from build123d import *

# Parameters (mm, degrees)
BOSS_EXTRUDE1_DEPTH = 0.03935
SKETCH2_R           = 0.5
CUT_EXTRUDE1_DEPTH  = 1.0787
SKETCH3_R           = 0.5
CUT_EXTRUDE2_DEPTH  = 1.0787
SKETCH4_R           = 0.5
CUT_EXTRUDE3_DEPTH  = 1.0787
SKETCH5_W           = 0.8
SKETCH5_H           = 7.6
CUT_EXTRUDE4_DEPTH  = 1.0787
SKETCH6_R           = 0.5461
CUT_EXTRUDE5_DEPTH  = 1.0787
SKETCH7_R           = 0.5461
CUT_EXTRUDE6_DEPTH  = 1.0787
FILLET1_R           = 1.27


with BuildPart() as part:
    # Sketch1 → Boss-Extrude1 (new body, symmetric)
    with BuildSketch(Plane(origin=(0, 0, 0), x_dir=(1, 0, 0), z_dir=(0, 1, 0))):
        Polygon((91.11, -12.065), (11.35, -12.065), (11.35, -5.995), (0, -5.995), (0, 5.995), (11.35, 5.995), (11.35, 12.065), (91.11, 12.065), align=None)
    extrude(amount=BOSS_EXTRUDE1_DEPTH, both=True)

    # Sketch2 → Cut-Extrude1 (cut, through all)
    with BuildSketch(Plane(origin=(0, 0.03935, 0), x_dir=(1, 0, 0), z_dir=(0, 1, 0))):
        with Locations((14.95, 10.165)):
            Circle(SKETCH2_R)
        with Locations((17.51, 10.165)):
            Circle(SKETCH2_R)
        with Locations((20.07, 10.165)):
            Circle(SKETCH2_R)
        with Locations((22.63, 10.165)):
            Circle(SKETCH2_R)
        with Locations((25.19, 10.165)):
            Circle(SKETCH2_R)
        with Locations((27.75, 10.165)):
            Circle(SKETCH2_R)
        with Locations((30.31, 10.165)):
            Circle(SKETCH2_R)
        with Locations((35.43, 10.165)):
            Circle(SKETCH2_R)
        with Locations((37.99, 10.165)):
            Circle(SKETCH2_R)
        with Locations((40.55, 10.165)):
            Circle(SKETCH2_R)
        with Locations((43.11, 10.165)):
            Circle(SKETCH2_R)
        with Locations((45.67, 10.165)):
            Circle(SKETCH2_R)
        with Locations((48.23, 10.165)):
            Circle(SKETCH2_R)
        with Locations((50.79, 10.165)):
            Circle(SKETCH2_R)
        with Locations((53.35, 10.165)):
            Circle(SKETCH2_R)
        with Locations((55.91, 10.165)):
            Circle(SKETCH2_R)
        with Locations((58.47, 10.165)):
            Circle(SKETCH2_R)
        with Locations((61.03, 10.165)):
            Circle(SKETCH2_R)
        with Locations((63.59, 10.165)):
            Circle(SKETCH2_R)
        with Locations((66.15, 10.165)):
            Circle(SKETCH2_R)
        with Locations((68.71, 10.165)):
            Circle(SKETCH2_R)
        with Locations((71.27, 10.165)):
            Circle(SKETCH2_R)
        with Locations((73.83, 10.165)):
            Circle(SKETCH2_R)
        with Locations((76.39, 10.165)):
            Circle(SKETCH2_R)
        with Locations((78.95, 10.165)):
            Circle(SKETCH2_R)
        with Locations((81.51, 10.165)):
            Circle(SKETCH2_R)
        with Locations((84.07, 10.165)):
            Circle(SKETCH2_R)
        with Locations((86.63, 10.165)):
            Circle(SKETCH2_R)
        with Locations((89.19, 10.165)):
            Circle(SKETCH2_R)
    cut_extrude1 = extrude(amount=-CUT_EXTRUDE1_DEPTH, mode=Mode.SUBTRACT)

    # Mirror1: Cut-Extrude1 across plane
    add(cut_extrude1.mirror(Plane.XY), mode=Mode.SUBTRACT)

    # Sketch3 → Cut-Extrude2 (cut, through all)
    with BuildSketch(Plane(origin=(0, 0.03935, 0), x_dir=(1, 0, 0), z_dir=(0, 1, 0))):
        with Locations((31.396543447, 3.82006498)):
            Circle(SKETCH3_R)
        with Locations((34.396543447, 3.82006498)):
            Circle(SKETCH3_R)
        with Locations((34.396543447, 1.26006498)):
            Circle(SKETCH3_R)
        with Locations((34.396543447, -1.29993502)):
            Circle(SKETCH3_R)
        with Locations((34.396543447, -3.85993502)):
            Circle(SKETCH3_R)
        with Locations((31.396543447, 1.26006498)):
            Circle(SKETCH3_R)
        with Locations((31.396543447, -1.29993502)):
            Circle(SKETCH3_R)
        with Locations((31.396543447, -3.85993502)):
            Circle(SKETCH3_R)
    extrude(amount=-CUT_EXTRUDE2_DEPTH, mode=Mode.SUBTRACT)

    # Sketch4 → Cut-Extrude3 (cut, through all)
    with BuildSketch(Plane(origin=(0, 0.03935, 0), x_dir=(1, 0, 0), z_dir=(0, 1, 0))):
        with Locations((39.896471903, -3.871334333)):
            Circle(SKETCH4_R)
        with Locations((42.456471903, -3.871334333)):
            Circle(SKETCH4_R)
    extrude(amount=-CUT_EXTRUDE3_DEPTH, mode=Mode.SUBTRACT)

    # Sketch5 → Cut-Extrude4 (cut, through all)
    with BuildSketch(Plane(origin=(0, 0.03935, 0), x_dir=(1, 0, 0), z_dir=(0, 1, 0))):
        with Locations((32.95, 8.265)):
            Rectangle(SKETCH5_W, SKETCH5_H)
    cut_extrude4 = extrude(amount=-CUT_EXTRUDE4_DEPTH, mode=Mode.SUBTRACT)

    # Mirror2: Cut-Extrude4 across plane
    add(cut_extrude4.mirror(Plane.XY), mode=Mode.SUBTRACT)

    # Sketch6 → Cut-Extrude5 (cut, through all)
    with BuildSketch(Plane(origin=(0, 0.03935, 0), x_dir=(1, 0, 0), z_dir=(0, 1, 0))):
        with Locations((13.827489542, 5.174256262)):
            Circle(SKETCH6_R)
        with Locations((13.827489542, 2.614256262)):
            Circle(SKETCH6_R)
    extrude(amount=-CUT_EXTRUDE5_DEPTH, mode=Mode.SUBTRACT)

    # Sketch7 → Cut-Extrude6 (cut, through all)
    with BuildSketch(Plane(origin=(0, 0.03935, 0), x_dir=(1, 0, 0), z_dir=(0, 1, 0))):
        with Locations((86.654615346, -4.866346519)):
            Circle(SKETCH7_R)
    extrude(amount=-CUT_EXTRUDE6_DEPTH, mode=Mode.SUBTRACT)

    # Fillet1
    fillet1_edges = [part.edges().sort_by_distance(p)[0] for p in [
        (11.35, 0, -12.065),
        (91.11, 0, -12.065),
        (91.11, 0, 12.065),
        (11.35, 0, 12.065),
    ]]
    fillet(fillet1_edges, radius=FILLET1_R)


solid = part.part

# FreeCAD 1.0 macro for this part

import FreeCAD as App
import Part
import Sketcher
from FreeCAD import Vector


def edges_at(feature, points):
    """Names of the edges that pass closest to the given points."""
    edges = feature.Shape.Edges
    near = lambda p: min(range(len(edges)), key=lambda i: edges[i].distToShape(Part.Vertex(*p))[0])
    return sorted({f"Edge{near(p) + 1}" for p in points})


def add_polygon(sketch, points):
    """Adds a closed chain of lines whose ends are joined by coincident constraints."""
    first, n = sketch.GeometryCount, len(points)
    for a, b in zip(points, points[1:] + points[:1]):
        sketch.addGeometry(Part.LineSegment(App.Vector(*a, 0), App.Vector(*b, 0)), False)
    for i in range(n):
        sketch.addConstraint(Sketcher.Constraint("Coincident", first + i, 2, first + (i + 1) % n, 1))

doc = App.newDocument("Part")
params = doc.addObject("Spreadsheet::Sheet", "Params")
for row, (alias, value) in enumerate([
    ("sketch1_width", "79.76 mm"),
    ("sketch1_width2", "11.35 mm"),
    ("sketch1_height", "24.13 mm"),
    ("sketch1_height2", "6.07 mm"),
    ("pad1_length", "0.0787 mm"),
    ("sketch2_diameter", "1 mm"),
    ("sketch3_diameter", "1 mm"),
    ("sketch4_diameter", "1 mm"),
    ("sketch5_width", "0.8 mm"),
    ("sketch5_height", "7.6 mm"),
    ("fillet_radius", "1.27 mm"),
], start=1):
    params.set(f"A{row}", alias)
    params.set(f"B{row}", "=" + value)
    params.setAlias(f"B{row}", alias)

body = doc.addObject("PartDesign::Body", "Body")

# Sketch on XZ plane
sketch1 = body.newObject("Sketcher::SketchObject", "Sketch")
sketch1.AttachmentSupport = (doc.getObject("XZ_Plane"), [""])
sketch1.MapMode = "FlatFace"
add_polygon(sketch1, [(11.35, 12.065), (91.11, 12.065), (91.11, -12.065), (11.35, -12.065), (11.35, -5.995), (0, -5.995), (0, 5.995), (11.35, 5.995)])  # lines 0-7
sketch1.addConstraint(Sketcher.Constraint("Horizontal", 0))
sketch1.addConstraint(Sketcher.Constraint("Vertical", 1))
sketch1.addConstraint(Sketcher.Constraint("Horizontal", 2))
sketch1.addConstraint(Sketcher.Constraint("Vertical", 3))
sketch1.addConstraint(Sketcher.Constraint("Horizontal", 4))
sketch1.addConstraint(Sketcher.Constraint("Vertical", 5))
sketch1.addConstraint(Sketcher.Constraint("Horizontal", 6))
sketch1.addConstraint(Sketcher.Constraint("Vertical", 7))
sketch1.addConstraint(Sketcher.Constraint("Symmetric", 4, 2, 5, 2, -1, 1))
sketch1.addConstraint(Sketcher.Constraint("Symmetric", 2, 2, 7, 2, -1))
sketch1.addConstraint(Sketcher.Constraint("DistanceX", 0, 1, 0, 2, 79.76))
sketch1.addConstraint(Sketcher.Constraint("DistanceX", 4, 2, 4, 1, 11.35))
sketch1.addConstraint(Sketcher.Constraint("DistanceY", 1, 2, 1, 1, 24.13))
sketch1.addConstraint(Sketcher.Constraint("DistanceY", 3, 1, 3, 2, 6.07))
sketch1.setExpression("Constraints[18]", "Params.sketch1_width")
sketch1.setExpression("Constraints[19]", "Params.sketch1_width2")
sketch1.setExpression("Constraints[20]", "Params.sketch1_height")
sketch1.setExpression("Constraints[21]", "Params.sketch1_height2")
pad1 = body.newObject("PartDesign::Pad", "Pad")
pad1.Profile = sketch1
pad1.setExpression("Length", "Params.pad1_length")
pad1.Midplane = True

# Sketch on XZ plane
sketch2 = body.newObject("Sketcher::SketchObject", "Sketch001")
sketch2.AttachmentSupport = (doc.getObject("XZ_Plane"), [""])
sketch2.MapMode = "FlatFace"
sketch2.AttachmentOffset = App.Placement(Vector(0, 0, -0.03935), App.Rotation())
sketch2.addGeometry(Part.Circle(Vector(14.95, -10.165, 0), Vector(0, 0, 1), 0.5), False)
sketch2.addGeometry(Part.Circle(Vector(17.51, -10.165, 0), Vector(0, 0, 1), 0.5), False)
sketch2.addGeometry(Part.Circle(Vector(20.07, -10.165, 0), Vector(0, 0, 1), 0.5), False)
sketch2.addGeometry(Part.Circle(Vector(22.63, -10.165, 0), Vector(0, 0, 1), 0.5), False)
sketch2.addGeometry(Part.Circle(Vector(25.19, -10.165, 0), Vector(0, 0, 1), 0.5), False)
sketch2.addGeometry(Part.Circle(Vector(27.75, -10.165, 0), Vector(0, 0, 1), 0.5), False)
sketch2.addGeometry(Part.Circle(Vector(30.31, -10.165, 0), Vector(0, 0, 1), 0.5), False)
sketch2.addGeometry(Part.Circle(Vector(35.43, -10.165, 0), Vector(0, 0, 1), 0.5), False)
sketch2.addGeometry(Part.Circle(Vector(37.99, -10.165, 0), Vector(0, 0, 1), 0.5), False)
sketch2.addGeometry(Part.Circle(Vector(40.55, -10.165, 0), Vector(0, 0, 1), 0.5), False)
sketch2.addGeometry(Part.Circle(Vector(43.11, -10.165, 0), Vector(0, 0, 1), 0.5), False)
sketch2.addGeometry(Part.Circle(Vector(45.67, -10.165, 0), Vector(0, 0, 1), 0.5), False)
sketch2.addGeometry(Part.Circle(Vector(48.23, -10.165, 0), Vector(0, 0, 1), 0.5), False)
sketch2.addGeometry(Part.Circle(Vector(50.79, -10.165, 0), Vector(0, 0, 1), 0.5), False)
sketch2.addGeometry(Part.Circle(Vector(53.35, -10.165, 0), Vector(0, 0, 1), 0.5), False)
sketch2.addGeometry(Part.Circle(Vector(55.91, -10.165, 0), Vector(0, 0, 1), 0.5), False)
sketch2.addGeometry(Part.Circle(Vector(58.47, -10.165, 0), Vector(0, 0, 1), 0.5), False)
sketch2.addGeometry(Part.Circle(Vector(61.03, -10.165, 0), Vector(0, 0, 1), 0.5), False)
sketch2.addGeometry(Part.Circle(Vector(63.59, -10.165, 0), Vector(0, 0, 1), 0.5), False)
sketch2.addGeometry(Part.Circle(Vector(66.15, -10.165, 0), Vector(0, 0, 1), 0.5), False)
sketch2.addGeometry(Part.Circle(Vector(68.71, -10.165, 0), Vector(0, 0, 1), 0.5), False)
sketch2.addGeometry(Part.Circle(Vector(71.27, -10.165, 0), Vector(0, 0, 1), 0.5), False)
sketch2.addGeometry(Part.Circle(Vector(73.83, -10.165, 0), Vector(0, 0, 1), 0.5), False)
sketch2.addGeometry(Part.Circle(Vector(76.39, -10.165, 0), Vector(0, 0, 1), 0.5), False)
sketch2.addGeometry(Part.Circle(Vector(78.95, -10.165, 0), Vector(0, 0, 1), 0.5), False)
sketch2.addGeometry(Part.Circle(Vector(81.51, -10.165, 0), Vector(0, 0, 1), 0.5), False)
sketch2.addGeometry(Part.Circle(Vector(84.07, -10.165, 0), Vector(0, 0, 1), 0.5), False)
sketch2.addGeometry(Part.Circle(Vector(86.63, -10.165, 0), Vector(0, 0, 1), 0.5), False)
sketch2.addGeometry(Part.Circle(Vector(89.19, -10.165, 0), Vector(0, 0, 1), 0.5), False)
sketch2.addConstraint(Sketcher.Constraint("Equal", 0, 1))
sketch2.addConstraint(Sketcher.Constraint("Equal", 1, 2))
sketch2.addConstraint(Sketcher.Constraint("Equal", 2, 3))
sketch2.addConstraint(Sketcher.Constraint("Equal", 3, 4))
sketch2.addConstraint(Sketcher.Constraint("Equal", 4, 5))
sketch2.addConstraint(Sketcher.Constraint("Equal", 5, 6))
sketch2.addConstraint(Sketcher.Constraint("Equal", 6, 7))
sketch2.addConstraint(Sketcher.Constraint("Equal", 7, 8))
sketch2.addConstraint(Sketcher.Constraint("Equal", 8, 9))
sketch2.addConstraint(Sketcher.Constraint("Equal", 9, 10))
sketch2.addConstraint(Sketcher.Constraint("Equal", 10, 11))
sketch2.addConstraint(Sketcher.Constraint("Equal", 11, 12))
sketch2.addConstraint(Sketcher.Constraint("Equal", 12, 13))
sketch2.addConstraint(Sketcher.Constraint("Equal", 13, 14))
sketch2.addConstraint(Sketcher.Constraint("Equal", 14, 15))
sketch2.addConstraint(Sketcher.Constraint("Equal", 15, 16))
sketch2.addConstraint(Sketcher.Constraint("Equal", 16, 17))
sketch2.addConstraint(Sketcher.Constraint("Equal", 17, 18))
sketch2.addConstraint(Sketcher.Constraint("Equal", 18, 19))
sketch2.addConstraint(Sketcher.Constraint("Equal", 19, 20))
sketch2.addConstraint(Sketcher.Constraint("Equal", 20, 21))
sketch2.addConstraint(Sketcher.Constraint("Equal", 21, 22))
sketch2.addConstraint(Sketcher.Constraint("Equal", 22, 23))
sketch2.addConstraint(Sketcher.Constraint("Equal", 23, 24))
sketch2.addConstraint(Sketcher.Constraint("Equal", 24, 25))
sketch2.addConstraint(Sketcher.Constraint("Equal", 25, 26))
sketch2.addConstraint(Sketcher.Constraint("Equal", 26, 27))
sketch2.addConstraint(Sketcher.Constraint("Equal", 27, 28))
sketch2.addConstraint(Sketcher.Constraint("Horizontal", 0, 3, 1, 3))
sketch2.addConstraint(Sketcher.Constraint("Horizontal", 1, 3, 2, 3))
sketch2.addConstraint(Sketcher.Constraint("Horizontal", 2, 3, 3, 3))
sketch2.addConstraint(Sketcher.Constraint("Horizontal", 3, 3, 4, 3))
sketch2.addConstraint(Sketcher.Constraint("Horizontal", 4, 3, 5, 3))
sketch2.addConstraint(Sketcher.Constraint("Horizontal", 5, 3, 6, 3))
sketch2.addConstraint(Sketcher.Constraint("Horizontal", 6, 3, 7, 3))
sketch2.addConstraint(Sketcher.Constraint("Horizontal", 7, 3, 8, 3))
sketch2.addConstraint(Sketcher.Constraint("Horizontal", 8, 3, 9, 3))
sketch2.addConstraint(Sketcher.Constraint("Horizontal", 9, 3, 10, 3))
sketch2.addConstraint(Sketcher.Constraint("Horizontal", 10, 3, 11, 3))
sketch2.addConstraint(Sketcher.Constraint("Horizontal", 11, 3, 12, 3))
sketch2.addConstraint(Sketcher.Constraint("Horizontal", 12, 3, 13, 3))
sketch2.addConstraint(Sketcher.Constraint("Horizontal", 13, 3, 14, 3))
sketch2.addConstraint(Sketcher.Constraint("Horizontal", 14, 3, 15, 3))
sketch2.addConstraint(Sketcher.Constraint("Horizontal", 15, 3, 16, 3))
sketch2.addConstraint(Sketcher.Constraint("Horizontal", 16, 3, 17, 3))
sketch2.addConstraint(Sketcher.Constraint("Horizontal", 17, 3, 18, 3))
sketch2.addConstraint(Sketcher.Constraint("Horizontal", 18, 3, 19, 3))
sketch2.addConstraint(Sketcher.Constraint("Horizontal", 19, 3, 20, 3))
sketch2.addConstraint(Sketcher.Constraint("Horizontal", 20, 3, 21, 3))
sketch2.addConstraint(Sketcher.Constraint("Horizontal", 21, 3, 22, 3))
sketch2.addConstraint(Sketcher.Constraint("Horizontal", 22, 3, 23, 3))
sketch2.addConstraint(Sketcher.Constraint("Horizontal", 23, 3, 24, 3))
sketch2.addConstraint(Sketcher.Constraint("Horizontal", 24, 3, 25, 3))
sketch2.addConstraint(Sketcher.Constraint("Horizontal", 25, 3, 26, 3))
sketch2.addConstraint(Sketcher.Constraint("Horizontal", 26, 3, 27, 3))
sketch2.addConstraint(Sketcher.Constraint("Horizontal", 27, 3, 28, 3))
sketch2.addConstraint(Sketcher.Constraint("Diameter", 0, 1.0))
sketch2.addConstraint(Sketcher.Constraint("DistanceX", 0, 3, 5, 3, 12.8))
sketch2.addConstraint(Sketcher.Constraint("DistanceX", 1, 3, 6, 3, 12.8))
sketch2.addConstraint(Sketcher.Constraint("DistanceX", 3, 3, 7, 3, 12.8))
sketch2.addConstraint(Sketcher.Constraint("DistanceX", 4, 3, 8, 3, 12.8))
sketch2.addConstraint(Sketcher.Constraint("DistanceX", 5, 3, 9, 3, 12.8))
sketch2.addConstraint(Sketcher.Constraint("DistanceX", 6, 3, 10, 3, 12.8))
sketch2.addConstraint(Sketcher.Constraint("DistanceX", 7, 3, 12, 3, 12.8))
sketch2.addConstraint(Sketcher.Constraint("DistanceX", 8, 3, 13, 3, 12.8))
sketch2.addConstraint(Sketcher.Constraint("DistanceX", 9, 3, 14, 3, 12.8))
sketch2.addConstraint(Sketcher.Constraint("DistanceX", 10, 3, 15, 3, 12.8))
sketch2.addConstraint(Sketcher.Constraint("DistanceX", 11, 3, 16, 3, 12.8))
sketch2.addConstraint(Sketcher.Constraint("DistanceX", 12, 3, 17, 3, 12.8))
sketch2.addConstraint(Sketcher.Constraint("DistanceX", 13, 3, 18, 3, 12.8))
sketch2.addConstraint(Sketcher.Constraint("DistanceX", 14, 3, 19, 3, 12.8))
sketch2.addConstraint(Sketcher.Constraint("DistanceX", 15, 3, 20, 3, 12.8))
sketch2.addConstraint(Sketcher.Constraint("DistanceX", 16, 3, 21, 3, 12.8))
sketch2.addConstraint(Sketcher.Constraint("DistanceX", 17, 3, 22, 3, 12.8))
sketch2.addConstraint(Sketcher.Constraint("DistanceX", 18, 3, 23, 3, 12.8))
sketch2.addConstraint(Sketcher.Constraint("DistanceX", 19, 3, 24, 3, 12.8))
sketch2.addConstraint(Sketcher.Constraint("DistanceX", 20, 3, 25, 3, 12.8))
sketch2.addConstraint(Sketcher.Constraint("DistanceX", 21, 3, 26, 3, 12.8))
sketch2.addConstraint(Sketcher.Constraint("DistanceX", 22, 3, 27, 3, 12.8))
sketch2.addConstraint(Sketcher.Constraint("DistanceX", 23, 3, 28, 3, 12.8))
sketch2.addConstraint(Sketcher.Constraint("DistanceX", -1, 1, 0, 3, 14.95))
sketch2.addConstraint(Sketcher.Constraint("DistanceX", -1, 1, 1, 3, 17.51))
sketch2.addConstraint(Sketcher.Constraint("DistanceX", -1, 1, 2, 3, 20.07))
sketch2.addConstraint(Sketcher.Constraint("DistanceX", -1, 1, 3, 3, 22.63))
sketch2.addConstraint(Sketcher.Constraint("DistanceX", -1, 1, 4, 3, 25.19))
sketch2.addConstraint(Sketcher.Constraint("DistanceX", -1, 1, 11, 3, 45.67))
sketch2.addConstraint(Sketcher.Constraint("DistanceY", 0, 3, -1, 1, 10.165))
sketch2.setExpression("Constraints[56]", "Params.sketch2_diameter")
pocket1 = body.newObject("PartDesign::Pocket", "Pocket")
pocket1.Profile = sketch2
pocket1.Type = "ThroughAll"
pocket1.Reversed = True
doc.recompute()

mirrored = body.newObject("PartDesign::Mirrored", "Mirrored")
mirrored.Originals = [pocket1]
mirrored.MirrorPlane = (doc.getObject("XY_Plane"), [""])
body.Tip = mirrored

# Sketch on XZ plane
sketch3 = body.newObject("Sketcher::SketchObject", "Sketch002")
sketch3.AttachmentSupport = (doc.getObject("XZ_Plane"), [""])
sketch3.MapMode = "FlatFace"
sketch3.AttachmentOffset = App.Placement(Vector(0, 0, -0.03935), App.Rotation())
sketch3.addGeometry(Part.Circle(Vector(31.396543, -3.820065, 0), Vector(0, 0, 1), 0.5), False)
sketch3.addGeometry(Part.Circle(Vector(34.396543, -3.820065, 0), Vector(0, 0, 1), 0.5), False)
sketch3.addGeometry(Part.Circle(Vector(34.396543, -1.260065, 0), Vector(0, 0, 1), 0.5), False)
sketch3.addGeometry(Part.Circle(Vector(34.396543, 1.299935, 0), Vector(0, 0, 1), 0.5), False)
sketch3.addGeometry(Part.Circle(Vector(34.396543, 3.859935, 0), Vector(0, 0, 1), 0.5), False)
sketch3.addGeometry(Part.Circle(Vector(31.396543, -1.260065, 0), Vector(0, 0, 1), 0.5), False)
sketch3.addGeometry(Part.Circle(Vector(31.396543, 1.299935, 0), Vector(0, 0, 1), 0.5), False)
sketch3.addGeometry(Part.Circle(Vector(31.396543, 3.859935, 0), Vector(0, 0, 1), 0.5), False)
sketch3.addConstraint(Sketcher.Constraint("Equal", 0, 1))
sketch3.addConstraint(Sketcher.Constraint("Equal", 1, 2))
sketch3.addConstraint(Sketcher.Constraint("Equal", 2, 3))
sketch3.addConstraint(Sketcher.Constraint("Equal", 3, 4))
sketch3.addConstraint(Sketcher.Constraint("Equal", 4, 5))
sketch3.addConstraint(Sketcher.Constraint("Equal", 5, 6))
sketch3.addConstraint(Sketcher.Constraint("Equal", 6, 7))
sketch3.addConstraint(Sketcher.Constraint("Horizontal", 0, 3, 1, 3))
sketch3.addConstraint(Sketcher.Constraint("Horizontal", 2, 3, 5, 3))
sketch3.addConstraint(Sketcher.Constraint("Horizontal", 3, 3, 6, 3))
sketch3.addConstraint(Sketcher.Constraint("Horizontal", 4, 3, 7, 3))
sketch3.addConstraint(Sketcher.Constraint("Vertical", 1, 3, 2, 3))
sketch3.addConstraint(Sketcher.Constraint("Vertical", 2, 3, 3, 3))
sketch3.addConstraint(Sketcher.Constraint("Vertical", 3, 3, 4, 3))
sketch3.addConstraint(Sketcher.Constraint("Vertical", 0, 3, 5, 3))
sketch3.addConstraint(Sketcher.Constraint("Vertical", 5, 3, 6, 3))
sketch3.addConstraint(Sketcher.Constraint("Vertical", 6, 3, 7, 3))
sketch3.addConstraint(Sketcher.Constraint("Diameter", 0, 1.0))
sketch3.addConstraint(Sketcher.Constraint("DistanceX", 0, 3, 1, 3, 3.0))
sketch3.addConstraint(Sketcher.Constraint("DistanceY", 1, 3, 2, 3, 2.56))
sketch3.addConstraint(Sketcher.Constraint("DistanceY", 2, 3, 3, 3, 2.56))
sketch3.addConstraint(Sketcher.Constraint("DistanceY", 3, 3, 4, 3, 2.56))
sketch3.addConstraint(Sketcher.Constraint("DistanceX", -1, 1, 0, 3, 31.396543))
sketch3.addConstraint(Sketcher.Constraint("DistanceY", 0, 3, -1, 1, 3.820065))
sketch3.setExpression("Constraints[17]", "Params.sketch3_diameter")
pocket2 = body.newObject("PartDesign::Pocket", "Pocket001")
pocket2.Profile = sketch3
pocket2.Type = "ThroughAll"
pocket2.Reversed = True

# Sketch on XZ plane
sketch4 = body.newObject("Sketcher::SketchObject", "Sketch003")
sketch4.AttachmentSupport = (doc.getObject("XZ_Plane"), [""])
sketch4.MapMode = "FlatFace"
sketch4.AttachmentOffset = App.Placement(Vector(0, 0, -0.03935), App.Rotation())
sketch4.addGeometry(Part.Circle(Vector(39.896472, 3.871334, 0), Vector(0, 0, 1), 0.5), False)
sketch4.addGeometry(Part.Circle(Vector(42.456472, 3.871334, 0), Vector(0, 0, 1), 0.5), False)
sketch4.addConstraint(Sketcher.Constraint("Equal", 0, 1))
sketch4.addConstraint(Sketcher.Constraint("Horizontal", 0, 3, 1, 3))
sketch4.addConstraint(Sketcher.Constraint("Diameter", 0, 1.0))
sketch4.addConstraint(Sketcher.Constraint("DistanceX", 0, 3, 1, 3, 2.56))
sketch4.addConstraint(Sketcher.Constraint("DistanceX", -1, 1, 0, 3, 39.896472))
sketch4.addConstraint(Sketcher.Constraint("DistanceY", -1, 1, 0, 3, 3.871334))
sketch4.setExpression("Constraints[2]", "Params.sketch4_diameter")
pocket3 = body.newObject("PartDesign::Pocket", "Pocket002")
pocket3.Profile = sketch4
pocket3.Type = "ThroughAll"
pocket3.Reversed = True

# Sketch on XZ plane
sketch5 = body.newObject("Sketcher::SketchObject", "Sketch004")
sketch5.AttachmentSupport = (doc.getObject("XZ_Plane"), [""])
sketch5.MapMode = "FlatFace"
sketch5.AttachmentOffset = App.Placement(Vector(0, 0, -0.03935), App.Rotation())
add_polygon(sketch5, [(32.55, -12.065), (32.55, -4.465), (33.35, -4.465), (33.35, -12.065)])  # lines 0-3
sketch5.addConstraint(Sketcher.Constraint("Vertical", 0))
sketch5.addConstraint(Sketcher.Constraint("Horizontal", 1))
sketch5.addConstraint(Sketcher.Constraint("Vertical", 2))
sketch5.addConstraint(Sketcher.Constraint("Horizontal", 3))
sketch5.addConstraint(Sketcher.Constraint("DistanceX", 1, 1, 1, 2, 0.8))
sketch5.addConstraint(Sketcher.Constraint("DistanceY", 0, 1, 0, 2, 7.6))
sketch5.addConstraint(Sketcher.Constraint("DistanceX", -1, 1, 0, 2, 32.55))
sketch5.addConstraint(Sketcher.Constraint("DistanceY", 0, 2, -1, 1, 4.465))
sketch5.setExpression("Constraints[8]", "Params.sketch5_width")
sketch5.setExpression("Constraints[9]", "Params.sketch5_height")
pocket4 = body.newObject("PartDesign::Pocket", "Pocket003")
pocket4.Profile = sketch5
pocket4.Type = "ThroughAll"
pocket4.Reversed = True
doc.recompute()

mirrored2 = body.newObject("PartDesign::Mirrored", "Mirrored001")
mirrored2.Originals = [pocket4]
mirrored2.MirrorPlane = (doc.getObject("XY_Plane"), [""])
body.Tip = mirrored2

# Sketch on XZ plane
sketch6 = body.newObject("Sketcher::SketchObject", "Sketch005")
sketch6.AttachmentSupport = (doc.getObject("XZ_Plane"), [""])
sketch6.MapMode = "FlatFace"
sketch6.AttachmentOffset = App.Placement(Vector(0, 0, -0.03935), App.Rotation())
sketch6.addGeometry(Part.Circle(Vector(13.82749, -5.174256, 0), Vector(0, 0, 1), 0.5461), False)
sketch6.addGeometry(Part.Circle(Vector(13.82749, -2.614256, 0), Vector(0, 0, 1), 0.5461), False)
sketch6.addConstraint(Sketcher.Constraint("Equal", 0, 1))
sketch6.addConstraint(Sketcher.Constraint("Vertical", 0, 3, 1, 3))
sketch6.addConstraint(Sketcher.Constraint("Diameter", 0, 1.0922))
sketch6.addConstraint(Sketcher.Constraint("DistanceY", 0, 3, 1, 3, 2.56))
sketch6.addConstraint(Sketcher.Constraint("DistanceX", -1, 1, 0, 3, 13.82749))
sketch6.addConstraint(Sketcher.Constraint("DistanceY", 0, 3, -1, 1, 5.174256))
pocket5 = body.newObject("PartDesign::Pocket", "Pocket004")
pocket5.Profile = sketch6
pocket5.Type = "ThroughAll"
pocket5.Reversed = True

# Sketch on XZ plane
sketch7 = body.newObject("Sketcher::SketchObject", "Sketch006")
sketch7.AttachmentSupport = (doc.getObject("XZ_Plane"), [""])
sketch7.MapMode = "FlatFace"
sketch7.AttachmentOffset = App.Placement(Vector(0, 0, -0.03935), App.Rotation())
sketch7.addGeometry(Part.Circle(Vector(86.654615, 4.866347, 0), Vector(0, 0, 1), 0.5461), False)
sketch7.addConstraint(Sketcher.Constraint("Diameter", 0, 1.0922))
sketch7.addConstraint(Sketcher.Constraint("DistanceX", -1, 1, 0, 3, 86.654615))
sketch7.addConstraint(Sketcher.Constraint("DistanceY", -1, 1, 0, 3, 4.866347))
pocket6 = body.newObject("PartDesign::Pocket", "Pocket005")
pocket6.Profile = sketch7
pocket6.Type = "ThroughAll"
pocket6.Reversed = True
doc.recompute()

fillet = body.newObject("PartDesign::Fillet", "Fillet")
fillet.Base = (pocket6, edges_at(pocket6, [
    (11.35, 0, -12.065),
    (91.11, 0, -12.065),
    (91.11, 0, 12.065),
    (11.35, 0, 12.065),
]))
fillet.setExpression("Radius", "Params.fillet_radius")

doc.recompute()
